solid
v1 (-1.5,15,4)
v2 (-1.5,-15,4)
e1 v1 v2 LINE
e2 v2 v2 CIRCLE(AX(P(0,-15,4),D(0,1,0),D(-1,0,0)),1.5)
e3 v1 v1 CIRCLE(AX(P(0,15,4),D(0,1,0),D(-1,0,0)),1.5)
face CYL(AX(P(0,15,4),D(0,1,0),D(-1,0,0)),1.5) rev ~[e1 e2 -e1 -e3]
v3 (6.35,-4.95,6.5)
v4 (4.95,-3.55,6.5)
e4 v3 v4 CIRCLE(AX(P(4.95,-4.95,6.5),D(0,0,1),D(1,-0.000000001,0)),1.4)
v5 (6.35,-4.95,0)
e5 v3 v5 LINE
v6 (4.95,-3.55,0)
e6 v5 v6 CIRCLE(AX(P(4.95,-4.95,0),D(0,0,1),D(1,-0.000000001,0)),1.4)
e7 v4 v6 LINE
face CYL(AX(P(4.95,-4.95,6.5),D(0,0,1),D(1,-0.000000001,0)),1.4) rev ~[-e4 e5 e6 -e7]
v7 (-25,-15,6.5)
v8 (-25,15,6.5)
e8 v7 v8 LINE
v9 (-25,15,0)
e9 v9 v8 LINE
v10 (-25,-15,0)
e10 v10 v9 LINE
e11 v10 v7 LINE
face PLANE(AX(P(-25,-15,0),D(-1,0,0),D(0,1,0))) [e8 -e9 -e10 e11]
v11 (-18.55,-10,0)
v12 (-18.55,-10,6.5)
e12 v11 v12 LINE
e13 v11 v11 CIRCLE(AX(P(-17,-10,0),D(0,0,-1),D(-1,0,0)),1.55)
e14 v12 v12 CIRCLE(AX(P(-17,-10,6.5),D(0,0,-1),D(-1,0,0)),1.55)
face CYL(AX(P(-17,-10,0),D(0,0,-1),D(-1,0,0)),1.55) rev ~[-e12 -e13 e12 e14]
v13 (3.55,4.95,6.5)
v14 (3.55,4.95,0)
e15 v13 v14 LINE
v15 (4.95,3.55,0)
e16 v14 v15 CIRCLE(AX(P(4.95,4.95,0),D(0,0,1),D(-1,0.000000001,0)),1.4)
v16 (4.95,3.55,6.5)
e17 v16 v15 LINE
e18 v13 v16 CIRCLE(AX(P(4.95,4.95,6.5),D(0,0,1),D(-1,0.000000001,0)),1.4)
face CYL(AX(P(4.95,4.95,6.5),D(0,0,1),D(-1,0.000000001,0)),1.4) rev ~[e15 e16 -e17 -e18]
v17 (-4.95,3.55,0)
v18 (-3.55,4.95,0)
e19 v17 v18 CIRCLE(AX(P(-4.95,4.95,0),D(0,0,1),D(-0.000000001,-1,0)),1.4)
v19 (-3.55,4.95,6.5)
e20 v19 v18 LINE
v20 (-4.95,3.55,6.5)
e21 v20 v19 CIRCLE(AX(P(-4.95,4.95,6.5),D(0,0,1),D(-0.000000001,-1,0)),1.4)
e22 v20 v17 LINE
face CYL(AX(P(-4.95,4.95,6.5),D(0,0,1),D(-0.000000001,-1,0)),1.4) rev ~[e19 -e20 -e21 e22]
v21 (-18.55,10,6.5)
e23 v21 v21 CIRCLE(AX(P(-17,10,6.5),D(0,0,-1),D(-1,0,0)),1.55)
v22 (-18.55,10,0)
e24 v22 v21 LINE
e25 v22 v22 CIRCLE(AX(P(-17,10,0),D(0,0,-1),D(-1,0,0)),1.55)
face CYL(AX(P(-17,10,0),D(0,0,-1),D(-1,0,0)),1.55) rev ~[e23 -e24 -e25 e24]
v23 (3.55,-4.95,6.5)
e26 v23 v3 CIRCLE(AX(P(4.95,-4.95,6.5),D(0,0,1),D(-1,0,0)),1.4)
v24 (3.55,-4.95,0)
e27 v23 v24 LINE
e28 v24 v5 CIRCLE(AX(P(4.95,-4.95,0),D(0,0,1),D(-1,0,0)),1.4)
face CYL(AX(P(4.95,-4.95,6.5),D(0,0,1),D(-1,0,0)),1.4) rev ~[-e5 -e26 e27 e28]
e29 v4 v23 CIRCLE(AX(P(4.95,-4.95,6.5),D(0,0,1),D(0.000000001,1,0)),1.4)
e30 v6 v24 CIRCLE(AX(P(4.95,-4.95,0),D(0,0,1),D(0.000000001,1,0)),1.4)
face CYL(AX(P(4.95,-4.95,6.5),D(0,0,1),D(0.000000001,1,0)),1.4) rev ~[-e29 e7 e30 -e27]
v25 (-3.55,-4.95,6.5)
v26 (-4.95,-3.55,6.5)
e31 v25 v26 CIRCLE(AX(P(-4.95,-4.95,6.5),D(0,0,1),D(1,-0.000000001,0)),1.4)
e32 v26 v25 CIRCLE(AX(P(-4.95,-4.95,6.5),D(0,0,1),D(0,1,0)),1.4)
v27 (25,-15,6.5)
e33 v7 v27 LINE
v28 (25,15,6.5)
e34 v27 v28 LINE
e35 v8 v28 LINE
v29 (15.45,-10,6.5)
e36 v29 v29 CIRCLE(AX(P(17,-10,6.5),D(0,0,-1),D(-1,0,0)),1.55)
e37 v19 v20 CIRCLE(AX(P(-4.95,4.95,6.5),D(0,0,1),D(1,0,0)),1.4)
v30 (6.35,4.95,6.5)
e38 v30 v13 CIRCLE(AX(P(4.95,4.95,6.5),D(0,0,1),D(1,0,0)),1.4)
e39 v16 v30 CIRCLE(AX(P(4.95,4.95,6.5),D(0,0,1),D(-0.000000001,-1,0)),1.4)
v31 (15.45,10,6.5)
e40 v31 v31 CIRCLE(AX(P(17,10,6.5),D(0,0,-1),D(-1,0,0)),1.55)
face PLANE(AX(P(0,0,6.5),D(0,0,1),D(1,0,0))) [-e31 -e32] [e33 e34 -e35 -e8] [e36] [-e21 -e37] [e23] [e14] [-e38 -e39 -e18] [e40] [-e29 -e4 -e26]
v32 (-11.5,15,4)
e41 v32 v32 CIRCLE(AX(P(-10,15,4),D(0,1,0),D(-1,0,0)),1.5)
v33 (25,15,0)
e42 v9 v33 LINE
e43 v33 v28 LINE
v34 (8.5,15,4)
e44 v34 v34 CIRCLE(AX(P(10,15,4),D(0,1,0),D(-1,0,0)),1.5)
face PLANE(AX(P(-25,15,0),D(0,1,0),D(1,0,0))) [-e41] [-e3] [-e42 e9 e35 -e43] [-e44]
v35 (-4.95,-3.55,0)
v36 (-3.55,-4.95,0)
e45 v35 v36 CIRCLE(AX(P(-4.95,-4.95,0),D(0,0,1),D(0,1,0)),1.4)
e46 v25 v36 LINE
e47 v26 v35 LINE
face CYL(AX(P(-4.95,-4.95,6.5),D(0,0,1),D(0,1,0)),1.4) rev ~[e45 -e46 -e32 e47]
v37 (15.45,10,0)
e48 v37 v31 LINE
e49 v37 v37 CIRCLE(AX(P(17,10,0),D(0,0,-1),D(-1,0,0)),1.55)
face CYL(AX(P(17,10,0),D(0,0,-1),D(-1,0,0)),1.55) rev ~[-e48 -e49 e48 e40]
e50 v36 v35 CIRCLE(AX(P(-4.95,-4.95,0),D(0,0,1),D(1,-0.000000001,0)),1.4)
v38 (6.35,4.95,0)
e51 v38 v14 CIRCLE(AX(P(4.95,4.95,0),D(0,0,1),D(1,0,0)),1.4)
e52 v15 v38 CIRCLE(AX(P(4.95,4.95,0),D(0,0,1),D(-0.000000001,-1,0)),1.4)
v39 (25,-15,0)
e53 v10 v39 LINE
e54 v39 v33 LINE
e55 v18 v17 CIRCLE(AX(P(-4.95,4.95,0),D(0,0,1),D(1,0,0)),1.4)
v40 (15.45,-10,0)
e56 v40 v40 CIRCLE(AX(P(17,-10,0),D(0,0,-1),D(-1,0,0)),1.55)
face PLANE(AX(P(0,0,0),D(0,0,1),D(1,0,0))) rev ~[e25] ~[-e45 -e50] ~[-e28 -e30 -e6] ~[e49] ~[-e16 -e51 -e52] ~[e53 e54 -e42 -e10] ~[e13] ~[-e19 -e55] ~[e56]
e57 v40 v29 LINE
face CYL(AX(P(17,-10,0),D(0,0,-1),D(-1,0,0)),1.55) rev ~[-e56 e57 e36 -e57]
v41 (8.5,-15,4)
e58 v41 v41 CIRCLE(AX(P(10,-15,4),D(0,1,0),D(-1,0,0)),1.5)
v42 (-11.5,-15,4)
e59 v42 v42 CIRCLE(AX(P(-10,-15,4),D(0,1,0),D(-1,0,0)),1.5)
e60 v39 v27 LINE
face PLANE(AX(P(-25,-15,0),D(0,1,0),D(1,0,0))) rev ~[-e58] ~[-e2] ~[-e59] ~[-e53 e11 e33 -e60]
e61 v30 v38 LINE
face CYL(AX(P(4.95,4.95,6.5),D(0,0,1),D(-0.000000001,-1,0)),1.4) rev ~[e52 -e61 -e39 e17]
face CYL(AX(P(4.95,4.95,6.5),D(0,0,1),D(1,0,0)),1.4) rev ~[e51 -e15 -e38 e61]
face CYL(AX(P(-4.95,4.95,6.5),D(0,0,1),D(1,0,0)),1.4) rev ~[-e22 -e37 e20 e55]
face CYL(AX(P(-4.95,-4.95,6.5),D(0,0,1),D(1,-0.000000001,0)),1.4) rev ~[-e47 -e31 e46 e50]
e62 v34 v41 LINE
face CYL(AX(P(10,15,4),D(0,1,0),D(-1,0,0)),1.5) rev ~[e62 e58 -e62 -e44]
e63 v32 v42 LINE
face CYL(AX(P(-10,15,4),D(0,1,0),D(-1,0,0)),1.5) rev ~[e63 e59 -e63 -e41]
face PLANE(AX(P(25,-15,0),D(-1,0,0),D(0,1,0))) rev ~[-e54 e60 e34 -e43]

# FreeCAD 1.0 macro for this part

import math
import FreeCAD as App
import Part
import Sketcher
from FreeCAD import Vector
Q = App.Units.Quantity


def add_polygon(sketch, points):
    """Adds a closed chain of lines whose ends are joined by coincident constraints."""
    first, n = sketch.GeometryCount, len(points)
    for a, b in zip(points, points[1:] + points[:1]):
        sketch.addGeometry(Part.LineSegment(App.Vector(*a, 0), App.Vector(*b, 0)), False)
    for i in range(n):
        sketch.addConstraint(Sketcher.Constraint("Coincident", first + i, 2, first + (i + 1) % n, 1))

doc = App.newDocument("Part")
body = doc.addObject("PartDesign::Body", "Body")

sketch1 = doc.addObject("Sketcher::SketchObject", "Sketch")
body.addObject(sketch1)
sketch1.AttachmentSupport = (doc.XY_Plane, [""])
sketch1.MapMode = "FlatFace"
add_polygon(sketch1, [(-25, 15), (-25, -15), (25, -15), (25, 15)])
sketch1.addConstraint(Sketcher.Constraint("Vertical", 0))
sketch1.addConstraint(Sketcher.Constraint("Horizontal", 1))
sketch1.addConstraint(Sketcher.Constraint("Vertical", 2))
sketch1.addConstraint(Sketcher.Constraint("Horizontal", 3))
sketch1.addConstraint(Sketcher.Constraint("Symmetric", 0, 2, 2, 2, -1, 1))
sketch1.addConstraint(Sketcher.Constraint("DistanceX", 1, 1, 1, 2, Q("50 mm")))
sketch1.addConstraint(Sketcher.Constraint("DistanceY", 0, 2, 0, 1, Q("30 mm")))
pad1 = doc.addObject("PartDesign::Pad", "Pad")
body.addObject(pad1)
pad1.Profile = sketch1
pad1.Length = 6.5

sketch2 = doc.addObject("Sketcher::SketchObject", "Sketch001")
body.addObject(sketch2)
sketch2.AttachmentSupport = (doc.XY_Plane, [""])
sketch2.MapMode = "FlatFace"
sketch2.AttachmentOffset = App.Placement(Vector(0, 0, 6.5), App.Rotation())
sketch2.addGeometry(Part.ArcOfCircle(Part.Circle(Vector(-5, 5, 0), Vector(0, 0, 1), 1.4), math.radians(0), math.radians(270)), False)
sketch2.addGeometry(Part.ArcOfCircle(Part.Circle(Vector(-4.9, 4.9, 0), Vector(0, 0, 1), 1.4), math.radians(-90), math.radians(0)), False)
sketch2.addGeometry(Part.ArcOfCircle(Part.Circle(Vector(4.9, 4.9, 0), Vector(0, 0, 1), 1.4), math.radians(180), math.radians(270)), False)
sketch2.addGeometry(Part.ArcOfCircle(Part.Circle(Vector(5, 4.9, 0), Vector(0, 0, 1), 1.4), math.radians(-90), math.radians(0)), False)
sketch2.addGeometry(Part.ArcOfCircle(Part.Circle(Vector(5, 5, 0), Vector(0, 0, 1), 1.4), math.radians(0), math.radians(180)), False)
sketch2.addGeometry(Part.ArcOfCircle(Part.Circle(Vector(4.9, -4.9, 0), Vector(0, 0, 1), 1.4), math.radians(90), math.radians(180)), False)
sketch2.addGeometry(Part.ArcOfCircle(Part.Circle(Vector(5, -5, 0), Vector(0, 0, 1), 1.4), math.radians(180), math.radians(360)), False)
sketch2.addGeometry(Part.ArcOfCircle(Part.Circle(Vector(5, -4.9, 0), Vector(0, 0, 1), 1.4), math.radians(0), math.radians(90)), False)
sketch2.addGeometry(Part.ArcOfCircle(Part.Circle(Vector(-5, -5, 0), Vector(0, 0, 1), 1.4), math.radians(90), math.radians(360)), False)
sketch2.addGeometry(Part.ArcOfCircle(Part.Circle(Vector(-4.9, -4.9, 0), Vector(0, 0, 1), 1.4), math.radians(0), math.radians(90)), False)
sketch2.addConstraint(Sketcher.Constraint("Tangent", 0, 1, 1, 2))
sketch2.addConstraint(Sketcher.Constraint("Coincident", 1, 1, 0, 2))
sketch2.addConstraint(Sketcher.Constraint("Tangent", 2, 2, 3, 1))
sketch2.addConstraint(Sketcher.Constraint("Tangent", 3, 2, 4, 1))
sketch2.addConstraint(Sketcher.Constraint("Tangent", 4, 2, 2, 1))
sketch2.addConstraint(Sketcher.Constraint("Tangent", 5, 2, 6, 1))
sketch2.addConstraint(Sketcher.Constraint("Tangent", 6, 2, 7, 1))
sketch2.addConstraint(Sketcher.Constraint("Tangent", 7, 2, 5, 1))
sketch2.addConstraint(Sketcher.Constraint("Tangent", 8, 1, 9, 2))
sketch2.addConstraint(Sketcher.Constraint("Coincident", 9, 1, 8, 2))
sketch2.addConstraint(Sketcher.Constraint("Equal", 1, 2))
sketch2.addConstraint(Sketcher.Constraint("Equal", 4, 5))
sketch2.addConstraint(Sketcher.Constraint("Equal", 7, 8))
sketch2.addConstraint(Sketcher.Constraint("Symmetric", 0, 3, 5, 3, -1, 1))
sketch2.addConstraint(Sketcher.Constraint("Symmetric", 2, 3, 8, 3, -1, 1))
sketch2.addConstraint(Sketcher.Constraint("Symmetric", 0, 3, 2, 3, -2))
sketch2.addConstraint(Sketcher.Constraint("Horizontal", 4, 3, 0, 1))
sketch2.addConstraint(Sketcher.Constraint("Horizontal", 0, 1, 3, 2))
sketch2.addConstraint(Sketcher.Constraint("Horizontal", 3, 2, 4, 2))
sketch2.addConstraint(Sketcher.Constraint("Horizontal", 9, 3, 5, 2))
sketch2.addConstraint(Sketcher.Constraint("Horizontal", 5, 2, 6, 2))
sketch2.addConstraint(Sketcher.Constraint("Horizontal", 6, 2, 9, 1))
sketch2.addConstraint(Sketcher.Constraint("Vertical", 9, 3, 1, 1))
sketch2.addConstraint(Sketcher.Constraint("Vertical", 7, 3, 2, 2))
sketch2.addConstraint(Sketcher.Constraint("Vertical", 2, 2, 7, 2))
sketch2.addConstraint(Sketcher.Constraint("Vertical", 1, 1, 8, 1))
sketch2.addConstraint(Sketcher.Constraint("Radius", 0, Q("1.4 mm")))
sketch2.addConstraint(Sketcher.Constraint("DistanceX", 1, 3, 2, 3, Q("9.9 mm")))
sketch2.addConstraint(Sketcher.Constraint("DistanceY", 5, 3, 2, 3, Q("9.9 mm")))
pocket1 = doc.addObject("PartDesign::Pocket", "Pocket")
body.addObject(pocket1)
pocket1.Profile = sketch2
pocket1.Type = "ThroughAll"

sketch3 = doc.addObject("Sketcher::SketchObject", "Sketch002")
body.addObject(sketch3)
sketch3.AttachmentSupport = (doc.XY_Plane, [""])
sketch3.MapMode = "FlatFace"
sketch3.addGeometry(Part.Circle(Vector(17, 10, 0), Vector(0, 0, 1), 1.6), False)
sketch3.addGeometry(Part.Circle(Vector(17, -10, 0), Vector(0, 0, 1), 1.6), False)
sketch3.addGeometry(Part.Circle(Vector(-17, -10, 0), Vector(0, 0, 1), 1.6), False)
sketch3.addGeometry(Part.Circle(Vector(-17, 10, 0), Vector(0, 0, 1), 1.6), False)
sketch3.addConstraint(Sketcher.Constraint("Equal", 0, 1))
sketch3.addConstraint(Sketcher.Constraint("Equal", 1, 2))
sketch3.addConstraint(Sketcher.Constraint("Equal", 2, 3))
sketch3.addConstraint(Sketcher.Constraint("Symmetric", 0, 3, 2, 3, -1, 1))
sketch3.addConstraint(Sketcher.Constraint("Symmetric", 1, 3, 3, 3, -1, 1))
sketch3.addConstraint(Sketcher.Constraint("Symmetric", 1, 3, 2, 3, -2))
sketch3.addConstraint(Sketcher.Constraint("Diameter", 0, Q("3.1 mm")))
sketch3.addConstraint(Sketcher.Constraint("DistanceX", -1, 1, 0, 3, Q("17 mm")))
sketch3.addConstraint(Sketcher.Constraint("DistanceY", -1, 1, 0, 3, Q("10 mm")))
pocket2 = doc.addObject("PartDesign::Pocket", "Pocket001")
body.addObject(pocket2)
pocket2.Profile = sketch3
pocket2.Type = "ThroughAll"
pocket2.Reversed = True

sketch4 = doc.addObject("Sketcher::SketchObject", "Sketch003")
body.addObject(sketch4)
sketch4.AttachmentSupport = (doc.XZ_Plane, [""])
sketch4.MapMode = "FlatFace"
sketch4.AttachmentOffset = App.Placement(Vector(0, 0, -15), App.Rotation())
sketch4.addGeometry(Part.Circle(Vector(-10, 4, 0), Vector(0, 0, 1), 1.5), False)
sketch4.addGeometry(Part.Circle(Vector(0, 4, 0), Vector(0, 0, 1), 1.5), False)
sketch4.addGeometry(Part.Circle(Vector(10, 4, 0), Vector(0, 0, 1), 1.5), False)
sketch4.addConstraint(Sketcher.Constraint("Equal", 0, 1))
sketch4.addConstraint(Sketcher.Constraint("Equal", 1, 2))
sketch4.addConstraint(Sketcher.Constraint("Symmetric", 0, 3, 2, 3, -2))
sketch4.addConstraint(Sketcher.Constraint("PointOnObject", 1, 3, -2))
sketch4.addConstraint(Sketcher.Constraint("Horizontal", 0, 3, 1, 3))
sketch4.addConstraint(Sketcher.Constraint("Diameter", 0, Q("3 mm")))
sketch4.addConstraint(Sketcher.Constraint("DistanceX", 0, 3, -1, 1, Q("10 mm")))
sketch4.addConstraint(Sketcher.Constraint("DistanceY", -1, 1, 0, 3, Q("4 mm")))
pocket3 = doc.addObject("PartDesign::Pocket", "Pocket002")
body.addObject(pocket3)
pocket3.Profile = sketch4
pocket3.Type = "ThroughAll"
pocket3.Reversed = True

doc.recompute()
